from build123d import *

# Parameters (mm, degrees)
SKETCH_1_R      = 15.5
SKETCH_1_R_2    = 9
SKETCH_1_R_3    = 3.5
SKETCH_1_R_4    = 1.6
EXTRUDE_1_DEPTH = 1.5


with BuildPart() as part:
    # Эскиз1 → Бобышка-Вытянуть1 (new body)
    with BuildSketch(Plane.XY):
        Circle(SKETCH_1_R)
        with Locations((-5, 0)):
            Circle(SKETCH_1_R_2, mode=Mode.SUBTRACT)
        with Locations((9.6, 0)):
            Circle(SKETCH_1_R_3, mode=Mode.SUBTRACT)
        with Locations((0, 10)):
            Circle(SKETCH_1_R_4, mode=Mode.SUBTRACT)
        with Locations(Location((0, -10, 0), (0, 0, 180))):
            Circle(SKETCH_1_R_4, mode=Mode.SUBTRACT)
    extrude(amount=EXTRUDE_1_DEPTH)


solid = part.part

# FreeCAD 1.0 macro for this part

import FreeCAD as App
import Part
import Sketcher
Q = App.Units.Quantity

doc = App.newDocument("Part")
body = doc.addObject("PartDesign::Body", "Body")

# Sketch on XY plane
sketch1 = body.newObject("Sketcher::SketchObject", "Sketch")
sketch1.AttachmentSupport = (doc.getObject("XY_Plane"), [""])
sketch1.MapMode = "FlatFace"
sketch1.addGeometry(Part.Circle(App.Vector(0, 0, 0), App.Vector(0, 0, 1), 15.5), False)
sketch1.addGeometry(Part.Circle(App.Vector(0, -10, 0), App.Vector(0, 0, 1), 1.6), False)
sketch1.addGeometry(Part.Circle(App.Vector(9.6, 0, 0), App.Vector(0, 0, 1), 3.5), False)
sketch1.addGeometry(Part.Circle(App.Vector(-5, 0, 0), App.Vector(0, 0, 1), 9), False)
sketch1.addGeometry(Part.Circle(App.Vector(0, 10, 0), App.Vector(0, 0, 1), 1.6), False)
sketch1.addConstraint(Sketcher.Constraint("Coincident", 0, 3, -1, 1))
sketch1.addConstraint(Sketcher.Constraint("Equal", 1, 4))
sketch1.addConstraint(Sketcher.Constraint("Symmetric", 1, 3, 4, 3, -1, 1))
sketch1.addConstraint(Sketcher.Constraint("PointOnObject", 1, 3, -2))
sketch1.addConstraint(Sketcher.Constraint("PointOnObject", 2, 3, -1))
sketch1.addConstraint(Sketcher.Constraint("PointOnObject", 3, 3, -1))
sketch1.addConstraint(Sketcher.Constraint("Diameter", 0, Q("31 mm")))
sketch1.addConstraint(Sketcher.Constraint("Diameter", 2, Q("7 mm")))
sketch1.addConstraint(Sketcher.Constraint("Diameter", 3, Q("18 mm")))
sketch1.addConstraint(Sketcher.Constraint("Diameter", 1, Q("3.2 mm")))
sketch1.addConstraint(Sketcher.Constraint("DistanceY", 1, 3, -1, 1, Q("10 mm")))
sketch1.addConstraint(Sketcher.Constraint("DistanceX", 3, 3, -1, 1, Q("5 mm")))
sketch1.addConstraint(Sketcher.Constraint("DistanceX", -1, 1, 2, 3, Q("9.6 mm")))
pad1 = body.newObject("PartDesign::Pad", "Pad")
pad1.Profile = sketch1
pad1.Length = 1.5

doc.recompute()
